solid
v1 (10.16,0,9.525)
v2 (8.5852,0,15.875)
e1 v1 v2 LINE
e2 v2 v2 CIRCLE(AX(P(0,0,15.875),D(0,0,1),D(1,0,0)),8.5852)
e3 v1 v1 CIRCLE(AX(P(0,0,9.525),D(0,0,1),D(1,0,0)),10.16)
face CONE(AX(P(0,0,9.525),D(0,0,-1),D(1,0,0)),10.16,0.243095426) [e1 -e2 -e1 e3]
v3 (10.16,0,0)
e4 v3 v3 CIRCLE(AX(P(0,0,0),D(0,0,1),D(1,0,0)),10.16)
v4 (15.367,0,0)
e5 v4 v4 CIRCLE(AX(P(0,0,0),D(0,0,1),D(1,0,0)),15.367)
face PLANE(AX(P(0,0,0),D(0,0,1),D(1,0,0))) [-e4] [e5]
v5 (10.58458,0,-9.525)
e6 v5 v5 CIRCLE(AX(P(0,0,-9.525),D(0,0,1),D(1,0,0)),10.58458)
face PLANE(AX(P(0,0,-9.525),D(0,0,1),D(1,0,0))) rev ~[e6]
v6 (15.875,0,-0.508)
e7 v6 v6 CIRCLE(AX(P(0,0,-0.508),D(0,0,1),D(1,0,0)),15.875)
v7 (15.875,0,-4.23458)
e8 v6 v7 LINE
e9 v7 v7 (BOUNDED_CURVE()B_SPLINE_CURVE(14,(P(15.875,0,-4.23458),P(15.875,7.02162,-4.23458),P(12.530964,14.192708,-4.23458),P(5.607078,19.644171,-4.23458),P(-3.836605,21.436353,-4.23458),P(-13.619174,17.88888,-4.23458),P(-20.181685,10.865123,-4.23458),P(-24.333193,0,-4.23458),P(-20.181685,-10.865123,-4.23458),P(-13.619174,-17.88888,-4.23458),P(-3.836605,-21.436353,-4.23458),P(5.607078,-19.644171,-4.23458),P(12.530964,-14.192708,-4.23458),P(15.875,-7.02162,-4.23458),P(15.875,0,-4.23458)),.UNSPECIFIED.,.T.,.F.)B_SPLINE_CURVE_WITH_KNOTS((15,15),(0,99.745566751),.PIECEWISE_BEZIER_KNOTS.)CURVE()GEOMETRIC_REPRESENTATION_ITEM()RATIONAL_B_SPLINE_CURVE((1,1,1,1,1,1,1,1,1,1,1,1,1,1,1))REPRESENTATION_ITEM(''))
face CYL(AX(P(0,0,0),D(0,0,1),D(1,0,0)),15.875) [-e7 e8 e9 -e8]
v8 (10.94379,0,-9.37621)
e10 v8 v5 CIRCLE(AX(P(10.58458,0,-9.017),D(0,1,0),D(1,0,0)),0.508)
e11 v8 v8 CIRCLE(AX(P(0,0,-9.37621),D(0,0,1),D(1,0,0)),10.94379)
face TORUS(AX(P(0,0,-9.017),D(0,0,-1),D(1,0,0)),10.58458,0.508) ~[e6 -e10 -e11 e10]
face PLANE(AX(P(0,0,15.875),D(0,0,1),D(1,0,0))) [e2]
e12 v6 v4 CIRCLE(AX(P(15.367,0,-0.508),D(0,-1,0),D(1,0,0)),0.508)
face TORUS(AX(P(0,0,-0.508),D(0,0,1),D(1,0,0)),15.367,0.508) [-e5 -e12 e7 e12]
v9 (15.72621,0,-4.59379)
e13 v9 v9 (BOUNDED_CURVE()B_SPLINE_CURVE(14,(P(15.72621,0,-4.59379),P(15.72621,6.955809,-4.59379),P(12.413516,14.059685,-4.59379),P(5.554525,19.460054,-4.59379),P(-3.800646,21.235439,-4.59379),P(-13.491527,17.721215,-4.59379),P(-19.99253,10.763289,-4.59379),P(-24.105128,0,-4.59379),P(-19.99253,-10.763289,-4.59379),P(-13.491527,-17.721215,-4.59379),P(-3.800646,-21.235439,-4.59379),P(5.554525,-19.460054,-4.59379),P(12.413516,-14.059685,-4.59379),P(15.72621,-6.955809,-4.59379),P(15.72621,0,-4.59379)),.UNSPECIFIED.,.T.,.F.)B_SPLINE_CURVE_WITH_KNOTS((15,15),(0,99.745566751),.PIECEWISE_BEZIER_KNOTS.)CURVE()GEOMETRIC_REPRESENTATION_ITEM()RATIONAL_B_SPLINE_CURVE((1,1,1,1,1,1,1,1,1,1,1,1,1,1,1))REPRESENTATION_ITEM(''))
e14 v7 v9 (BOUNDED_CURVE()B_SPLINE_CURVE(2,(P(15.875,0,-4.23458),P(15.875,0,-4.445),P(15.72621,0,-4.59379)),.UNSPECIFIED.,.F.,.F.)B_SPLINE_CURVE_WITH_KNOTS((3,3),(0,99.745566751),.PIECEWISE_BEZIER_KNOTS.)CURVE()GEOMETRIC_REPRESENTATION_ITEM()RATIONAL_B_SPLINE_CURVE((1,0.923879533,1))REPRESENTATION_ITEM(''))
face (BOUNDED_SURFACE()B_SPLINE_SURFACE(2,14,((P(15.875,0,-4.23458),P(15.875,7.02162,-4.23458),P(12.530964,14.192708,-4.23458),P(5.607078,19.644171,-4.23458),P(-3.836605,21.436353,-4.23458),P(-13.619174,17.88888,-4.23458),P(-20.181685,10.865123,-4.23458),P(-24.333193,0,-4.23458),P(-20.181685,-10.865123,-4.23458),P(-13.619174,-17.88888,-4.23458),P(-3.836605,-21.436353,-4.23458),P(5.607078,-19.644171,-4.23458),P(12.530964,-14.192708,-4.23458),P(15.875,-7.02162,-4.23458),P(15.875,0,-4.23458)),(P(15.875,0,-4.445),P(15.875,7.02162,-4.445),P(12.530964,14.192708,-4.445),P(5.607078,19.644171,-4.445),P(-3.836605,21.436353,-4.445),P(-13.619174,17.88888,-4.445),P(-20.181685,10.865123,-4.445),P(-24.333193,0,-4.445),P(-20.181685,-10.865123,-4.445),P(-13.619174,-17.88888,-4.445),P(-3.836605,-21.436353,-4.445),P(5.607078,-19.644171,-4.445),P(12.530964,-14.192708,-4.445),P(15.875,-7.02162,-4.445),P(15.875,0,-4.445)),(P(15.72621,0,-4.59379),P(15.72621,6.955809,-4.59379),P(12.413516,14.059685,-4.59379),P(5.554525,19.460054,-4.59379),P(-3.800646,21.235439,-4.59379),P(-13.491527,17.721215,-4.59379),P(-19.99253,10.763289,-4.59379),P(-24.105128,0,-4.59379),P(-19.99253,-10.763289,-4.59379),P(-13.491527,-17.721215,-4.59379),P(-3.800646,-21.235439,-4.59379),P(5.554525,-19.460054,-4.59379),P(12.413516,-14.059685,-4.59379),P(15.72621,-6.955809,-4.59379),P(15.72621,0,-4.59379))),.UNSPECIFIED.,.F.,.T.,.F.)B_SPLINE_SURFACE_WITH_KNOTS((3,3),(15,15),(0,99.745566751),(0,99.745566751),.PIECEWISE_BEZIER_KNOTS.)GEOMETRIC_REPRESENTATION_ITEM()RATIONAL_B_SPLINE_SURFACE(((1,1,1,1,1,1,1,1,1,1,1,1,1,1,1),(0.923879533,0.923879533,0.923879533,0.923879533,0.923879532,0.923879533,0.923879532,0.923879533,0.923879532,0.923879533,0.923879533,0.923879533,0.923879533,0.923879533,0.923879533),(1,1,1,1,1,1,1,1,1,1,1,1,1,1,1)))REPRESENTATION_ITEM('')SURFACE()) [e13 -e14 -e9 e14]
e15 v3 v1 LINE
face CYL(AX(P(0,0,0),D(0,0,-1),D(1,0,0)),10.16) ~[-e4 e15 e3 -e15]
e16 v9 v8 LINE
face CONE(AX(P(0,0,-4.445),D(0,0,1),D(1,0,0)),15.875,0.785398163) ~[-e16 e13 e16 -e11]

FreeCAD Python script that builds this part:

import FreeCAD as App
import Part
import Sketcher
from FreeCAD import Vector
Q = App.Units.Quantity


def edges_at(feature, points):
    """Names of the edges that pass closest to the given points."""
    edges = feature.Shape.Edges
    near = lambda p: min(range(len(edges)), key=lambda i: edges[i].distToShape(Part.Vertex(*p))[0])
    return sorted({f"Edge{near(p) + 1}" for p in points})

doc = App.newDocument("Part")
body = doc.addObject("PartDesign::Body", "Body")

sketch1 = body.newObject("Sketcher::SketchObject", "Sketch")
sketch1.AttachmentSupport = (doc.getObject("XY_Plane"), [""])
sketch1.MapMode = "FlatFace"
sketch1.addGeometry(Part.Circle(Vector(0, 0, 0), Vector(0, 0, 1), 16), False)
sketch1.addConstraint([
    Sketcher.Constraint("Coincident", 0, 3, -1, 1),
    Sketcher.Constraint("Diameter", 0, Q("1.25 in")),
])
pad1 = body.newObject("PartDesign::Pad", "Pad")
pad1.Profile = sketch1
pad1.Length = Q("0.375 in")
pad1.Reversed = True

sketch2 = body.newObject("Sketcher::SketchObject", "Sketch001")
sketch2.AttachmentSupport = (doc.getObject("XY_Plane"), [""])
sketch2.MapMode = "FlatFace"
sketch2.addGeometry(Part.Circle(Vector(0, 0, 0), Vector(0, 0, 1), 10), False)
sketch2.addConstraint([
    Sketcher.Constraint("Coincident", 0, 3, -1, 1),
    Sketcher.Constraint("Diameter", 0, Q("0.8 in")),
])
pad2 = body.newObject("PartDesign::Pad", "Pad001")
pad2.Profile = sketch2
pad2.Length = Q("0.625 in")
doc.recompute()

chamfer = body.newObject("PartDesign::Chamfer", "Chamfer")
chamfer.Base = (pad2, edges_at(pad2, [(-10.16, 0, 15.875)]))
chamfer.ChamferType = "Two distances"
chamfer.Size = Q("0.25 in")
chamfer.Size2 = Q("0.062 in")
doc.recompute()

chamfer2 = body.newObject("PartDesign::Chamfer", "Chamfer001")
chamfer2.Base = (chamfer, edges_at(chamfer, [(-15.875, 0, -9.525)]))
chamfer2.Size = Q("0.2 in")
doc.recompute()

fillet = body.newObject("PartDesign::Fillet", "Fillet")
fillet.Base = (chamfer2, edges_at(chamfer2, [(-15.875, 0, 0), (-15.875, 0, -4.445), (-10.795, 0, -9.525)]))
fillet.Radius = Q("0.02 in")

doc.recompute()
